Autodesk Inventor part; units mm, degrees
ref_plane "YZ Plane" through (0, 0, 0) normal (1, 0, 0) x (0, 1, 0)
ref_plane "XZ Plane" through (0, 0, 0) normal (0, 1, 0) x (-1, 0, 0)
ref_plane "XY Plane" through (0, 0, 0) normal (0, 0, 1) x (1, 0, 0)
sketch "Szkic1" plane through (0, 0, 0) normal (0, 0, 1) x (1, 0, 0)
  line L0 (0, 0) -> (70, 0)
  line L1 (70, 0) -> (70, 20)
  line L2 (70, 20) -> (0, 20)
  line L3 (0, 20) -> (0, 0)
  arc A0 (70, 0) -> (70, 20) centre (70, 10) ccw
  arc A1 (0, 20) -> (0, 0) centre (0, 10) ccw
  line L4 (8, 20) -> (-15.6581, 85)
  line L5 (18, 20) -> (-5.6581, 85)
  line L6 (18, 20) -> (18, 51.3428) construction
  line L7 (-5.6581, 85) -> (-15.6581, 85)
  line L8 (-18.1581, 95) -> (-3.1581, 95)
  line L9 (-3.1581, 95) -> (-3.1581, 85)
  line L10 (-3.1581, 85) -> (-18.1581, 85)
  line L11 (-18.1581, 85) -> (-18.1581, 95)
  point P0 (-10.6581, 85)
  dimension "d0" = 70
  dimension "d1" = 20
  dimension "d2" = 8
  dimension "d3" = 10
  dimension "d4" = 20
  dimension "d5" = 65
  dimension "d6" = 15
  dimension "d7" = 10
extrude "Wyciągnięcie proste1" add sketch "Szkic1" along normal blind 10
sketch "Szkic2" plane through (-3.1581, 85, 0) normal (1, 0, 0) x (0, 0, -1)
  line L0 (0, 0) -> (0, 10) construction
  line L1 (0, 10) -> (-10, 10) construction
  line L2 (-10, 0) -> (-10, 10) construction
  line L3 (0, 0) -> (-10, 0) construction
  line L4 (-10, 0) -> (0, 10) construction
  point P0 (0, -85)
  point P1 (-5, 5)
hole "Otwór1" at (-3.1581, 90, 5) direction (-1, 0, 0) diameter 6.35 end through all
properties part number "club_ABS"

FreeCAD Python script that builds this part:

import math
import FreeCAD as App
import Part
import Sketcher
from FreeCAD import Vector
Q = App.Units.Quantity

doc = App.newDocument("Part")
body = doc.addObject("PartDesign::Body", "Body")

sketch1 = body.newObject("Sketcher::SketchObject", "Sketch")
sketch1.AttachmentSupport = (doc.getObject("XY_Plane"), [""])
sketch1.MapMode = "FlatFace"
sketch1.addGeometry(Part.LineSegment(Vector(8, 20, 0), Vector(0, 20, 0)), False)
sketch1.addGeometry(Part.ArcOfCircle(Part.Circle(Vector(0, 10, 0), Vector(0, 0, 1), 10), math.radians(90), math.radians(270)), False)
sketch1.addGeometry(Part.LineSegment(Vector(0, 0, 0), Vector(70, 0, 0)), False)
sketch1.addGeometry(Part.ArcOfCircle(Part.Circle(Vector(70, 10, 0), Vector(0, 0, 1), 10), math.radians(-90), math.radians(90)), False)
sketch1.addGeometry(Part.LineSegment(Vector(70, 20, 0), Vector(18, 20, 0)), False)
sketch1.addGeometry(Part.LineSegment(Vector(18, 20, 0), Vector(-5.7, 85, 0)), False)
sketch1.addGeometry(Part.LineSegment(Vector(-5.7, 85, 0), Vector(-3.2, 85, 0)), False)
sketch1.addGeometry(Part.LineSegment(Vector(-3.2, 85, 0), Vector(-3.2, 95, 0)), False)
sketch1.addGeometry(Part.LineSegment(Vector(-3.2, 95, 0), Vector(-18.2, 95, 0)), False)
sketch1.addGeometry(Part.LineSegment(Vector(-18.2, 95, 0), Vector(-18.2, 85, 0)), False)
sketch1.addGeometry(Part.LineSegment(Vector(-18.2, 85, 0), Vector(-15.7, 85, 0)), False)
sketch1.addGeometry(Part.LineSegment(Vector(-15.7, 85, 0), Vector(8, 20, 0)), False)
sketch1.addConstraint(Sketcher.Constraint("Tangent", 0, 2, 1, 1))
sketch1.addConstraint(Sketcher.Constraint("Tangent", 1, 2, 2, 1))
sketch1.addConstraint(Sketcher.Constraint("Tangent", 2, 2, 3, 1))
sketch1.addConstraint(Sketcher.Constraint("Tangent", 3, 2, 4, 1))
sketch1.addConstraint(Sketcher.Constraint("Coincident", 4, 2, 5, 1))
sketch1.addConstraint(Sketcher.Constraint("Coincident", 5, 2, 6, 1))
sketch1.addConstraint(Sketcher.Constraint("Coincident", 6, 2, 7, 1))
sketch1.addConstraint(Sketcher.Constraint("Coincident", 7, 2, 8, 1))
sketch1.addConstraint(Sketcher.Constraint("Coincident", 8, 2, 9, 1))
sketch1.addConstraint(Sketcher.Constraint("Coincident", 9, 2, 10, 1))
sketch1.addConstraint(Sketcher.Constraint("Coincident", 10, 2, 11, 1))
sketch1.addConstraint(Sketcher.Constraint("Coincident", 11, 2, 0, 1))
sketch1.addConstraint(Sketcher.Constraint("Horizontal", 0))
sketch1.addConstraint(Sketcher.Constraint("Horizontal", 2))
sketch1.addConstraint(Sketcher.Constraint("Horizontal", 4))
sketch1.addConstraint(Sketcher.Constraint("Horizontal", 6))
sketch1.addConstraint(Sketcher.Constraint("Vertical", 7))
sketch1.addConstraint(Sketcher.Constraint("Horizontal", 8))
sketch1.addConstraint(Sketcher.Constraint("Vertical", 9))
sketch1.addConstraint(Sketcher.Constraint("Horizontal", 10))
sketch1.addConstraint(Sketcher.Constraint("Coincident", 1, 2, -1, 1))
sketch1.addConstraint(Sketcher.Constraint("Equal", 1, 3))
sketch1.addConstraint(Sketcher.Constraint("Parallel", 5, 11))
sketch1.addConstraint(Sketcher.Constraint("Horizontal", 6, 2, 9, 2))
sketch1.addConstraint(Sketcher.Constraint("Equal", 6, 10))
sketch1.addConstraint(Sketcher.Constraint("Radius", 1, 10.0))
sketch1.addConstraint(Sketcher.Constraint("DistanceX", 0, 2, 0, 1, 8.0))
sketch1.addConstraint(Sketcher.Constraint("DistanceX", 2, 1, 2, 2, 70.0))
sketch1.addConstraint(Sketcher.Constraint("DistanceX", 8, 2, 8, 1, 15.0))
sketch1.addConstraint(Sketcher.Constraint("DistanceY", 7, 1, 7, 2, 10.0))
sketch1.addConstraint(Sketcher.Constraint("Angle", 11, Q("-70 deg")))
sketch1.addConstraint(Sketcher.Constraint("DistanceY", 0, 2, 5, 2, 65.0))
sketch1.addConstraint(Sketcher.Constraint("DistanceX", 10, 2, 5, 2, 10.0))
pad1 = body.newObject("PartDesign::Pad", "Pad")
pad1.Profile = sketch1
pad1.Length = 10

sketch2 = body.newObject("Sketcher::SketchObject", "Sketch001")
sketch2.AttachmentSupport = (doc.getObject("YZ_Plane"), [""])
sketch2.MapMode = "FlatFace"
sketch2.AttachmentOffset = App.Placement(Vector(0, 0, -3.1581), App.Rotation())
sketch2.addGeometry(Part.Circle(Vector(90, 5, 0), Vector(0, 0, 1), 3.2), False)
sketch2.addConstraint(Sketcher.Constraint("Diameter", 0, 6.35))
sketch2.addConstraint(Sketcher.Constraint("DistanceX", -1, 1, 0, 3, 90.0))
sketch2.addConstraint(Sketcher.Constraint("DistanceY", -1, 1, 0, 3, 5.0))
doc.recompute()
hole = body.newObject("PartDesign::Hole", "Hole")
hole.Profile = sketch2
hole.ThreadType = "None"
hole.Diameter = 6.35
hole.DepthType = "ThroughAll"

doc.recompute()
